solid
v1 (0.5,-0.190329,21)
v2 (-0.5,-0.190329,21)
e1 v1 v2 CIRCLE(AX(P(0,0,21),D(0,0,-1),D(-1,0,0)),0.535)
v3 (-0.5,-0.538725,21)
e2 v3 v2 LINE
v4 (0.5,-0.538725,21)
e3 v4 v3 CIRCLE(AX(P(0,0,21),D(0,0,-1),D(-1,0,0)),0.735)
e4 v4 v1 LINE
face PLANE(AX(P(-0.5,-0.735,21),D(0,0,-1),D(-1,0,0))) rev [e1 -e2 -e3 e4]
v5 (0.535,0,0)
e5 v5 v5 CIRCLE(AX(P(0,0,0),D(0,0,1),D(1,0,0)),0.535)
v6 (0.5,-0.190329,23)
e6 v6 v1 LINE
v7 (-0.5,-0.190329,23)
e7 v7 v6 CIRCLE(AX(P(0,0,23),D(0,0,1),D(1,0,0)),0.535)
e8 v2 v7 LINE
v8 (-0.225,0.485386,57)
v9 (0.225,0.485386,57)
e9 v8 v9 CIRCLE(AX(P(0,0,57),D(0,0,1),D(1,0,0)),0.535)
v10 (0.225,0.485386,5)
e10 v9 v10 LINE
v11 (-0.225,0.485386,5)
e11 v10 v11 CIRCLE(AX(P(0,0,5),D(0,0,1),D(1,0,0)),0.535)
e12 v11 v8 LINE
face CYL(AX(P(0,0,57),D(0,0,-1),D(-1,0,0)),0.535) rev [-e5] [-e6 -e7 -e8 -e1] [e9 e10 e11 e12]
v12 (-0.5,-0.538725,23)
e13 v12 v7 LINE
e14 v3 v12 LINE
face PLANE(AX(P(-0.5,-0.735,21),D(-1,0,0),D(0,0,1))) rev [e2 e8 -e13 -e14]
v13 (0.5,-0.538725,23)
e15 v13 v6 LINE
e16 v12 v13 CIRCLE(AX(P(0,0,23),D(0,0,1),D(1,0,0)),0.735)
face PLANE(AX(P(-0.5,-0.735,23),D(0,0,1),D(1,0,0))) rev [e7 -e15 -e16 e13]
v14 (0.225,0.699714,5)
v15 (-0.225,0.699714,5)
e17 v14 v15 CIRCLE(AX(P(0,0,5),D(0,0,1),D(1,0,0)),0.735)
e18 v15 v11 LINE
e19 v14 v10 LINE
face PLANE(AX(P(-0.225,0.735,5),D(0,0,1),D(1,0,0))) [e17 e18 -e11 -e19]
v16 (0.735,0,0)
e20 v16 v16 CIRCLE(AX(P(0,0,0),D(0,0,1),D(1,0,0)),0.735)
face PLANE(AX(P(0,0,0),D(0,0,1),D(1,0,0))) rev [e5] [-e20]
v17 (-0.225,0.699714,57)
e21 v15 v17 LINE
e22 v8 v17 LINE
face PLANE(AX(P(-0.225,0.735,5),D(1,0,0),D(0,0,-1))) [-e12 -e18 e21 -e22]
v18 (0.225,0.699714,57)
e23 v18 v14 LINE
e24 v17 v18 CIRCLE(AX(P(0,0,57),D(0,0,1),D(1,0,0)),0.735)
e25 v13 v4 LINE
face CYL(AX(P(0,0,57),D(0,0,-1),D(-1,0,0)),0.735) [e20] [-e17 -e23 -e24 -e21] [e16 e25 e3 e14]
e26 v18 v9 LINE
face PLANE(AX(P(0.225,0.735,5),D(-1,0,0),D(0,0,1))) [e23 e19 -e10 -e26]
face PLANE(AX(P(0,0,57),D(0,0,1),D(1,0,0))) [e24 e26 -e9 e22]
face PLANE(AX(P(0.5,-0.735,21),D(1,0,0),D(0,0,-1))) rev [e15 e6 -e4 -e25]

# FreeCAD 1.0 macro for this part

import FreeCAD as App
import Part
import Sketcher
from FreeCAD import Vector


def add_polygon(sketch, points):
    """Adds a closed chain of lines whose ends are joined by coincident constraints."""
    first, n = sketch.GeometryCount, len(points)
    for a, b in zip(points, points[1:] + points[:1]):
        sketch.addGeometry(Part.LineSegment(App.Vector(*a, 0), App.Vector(*b, 0)), False)
    for i in range(n):
        sketch.addConstraint(Sketcher.Constraint("Coincident", first + i, 2, first + (i + 1) % n, 1))

doc = App.newDocument("Part")
body = doc.addObject("PartDesign::Body", "Body")

# Sketch on XY plane
sketch1 = doc.addObject("Sketcher::SketchObject", "Sketch")
body.addObject(sketch1)
sketch1.AttachmentSupport = (doc.XY_Plane, [""])
sketch1.MapMode = "FlatFace"
sketch1.addGeometry([
    Part.Circle(Vector(0, 0, 0), Vector(0, 0, 1), 0.7),
    Part.Circle(Vector(0, 0, 0), Vector(0, 0, 1), 0.5),
], False)
sketch1.addConstraint([
    Sketcher.Constraint("Coincident", 0, 3, -1, 1),
    Sketcher.Constraint("Coincident", 1, 3, -1, 1),
    Sketcher.Constraint("Diameter", 0, 1.47),
    Sketcher.Constraint("Diameter", 1, 1.07),
])
pad1 = doc.addObject("PartDesign::Pad", "Pad")
body.addObject(pad1)
pad1.Profile = sketch1
pad1.Length = 57

# Sketch on XZ plane
sketch2 = doc.addObject("Sketcher::SketchObject", "Sketch001")
body.addObject(sketch2)
sketch2.AttachmentSupport = (doc.XZ_Plane, [""])
sketch2.MapMode = "FlatFace"
add_polygon(sketch2, [(-0.23, 5), (-0.23, 58), (0.23, 58), (0.23, 5)])  # lines 0-3
sketch2.addConstraint([
    Sketcher.Constraint("Vertical", 0),
    Sketcher.Constraint("Horizontal", 1),
    Sketcher.Constraint("Vertical", 2),
    Sketcher.Constraint("Horizontal", 3),
    Sketcher.Constraint("DistanceY", 0, 1, 0, 2, 53.0),
    Sketcher.Constraint("DistanceY", -1, 1, 0, 2, 58.0),
    Sketcher.Constraint("DistanceX", 1, 1, 1, 2, 0.45),
    Sketcher.Constraint("DistanceX", 0, 2, -1, 1, 0.225),
])
pocket1 = doc.addObject("PartDesign::Pocket", "Pocket")
body.addObject(pocket1)
pocket1.Profile = sketch2
pocket1.Type = "ThroughAll"

# Sketch on XZ plane
sketch3 = doc.addObject("Sketcher::SketchObject", "Sketch002")
body.addObject(sketch3)
sketch3.AttachmentSupport = (doc.XZ_Plane, [""])
sketch3.MapMode = "FlatFace"
add_polygon(sketch3, [(-0.5, 21), (-0.5, 23), (0.5, 23), (0.5, 21)])  # lines 0-3
sketch3.addConstraint([
    Sketcher.Constraint("Vertical", 0),
    Sketcher.Constraint("Horizontal", 1),
    Sketcher.Constraint("Vertical", 2),
    Sketcher.Constraint("Horizontal", 3),
    Sketcher.Constraint("DistanceX", 1, 1, 1, 2, 1.0),
    Sketcher.Constraint("DistanceY", 0, 1, 0, 2, 2.0),
    Sketcher.Constraint("DistanceY", -1, 1, 0, 2, 23.0),
    Sketcher.Constraint("DistanceX", 0, 2, -1, 1, 0.5),
])
pocket2 = doc.addObject("PartDesign::Pocket", "Pocket001")
body.addObject(pocket2)
pocket2.Profile = sketch3
pocket2.Type = "ThroughAll"
pocket2.Reversed = True

doc.recompute()
